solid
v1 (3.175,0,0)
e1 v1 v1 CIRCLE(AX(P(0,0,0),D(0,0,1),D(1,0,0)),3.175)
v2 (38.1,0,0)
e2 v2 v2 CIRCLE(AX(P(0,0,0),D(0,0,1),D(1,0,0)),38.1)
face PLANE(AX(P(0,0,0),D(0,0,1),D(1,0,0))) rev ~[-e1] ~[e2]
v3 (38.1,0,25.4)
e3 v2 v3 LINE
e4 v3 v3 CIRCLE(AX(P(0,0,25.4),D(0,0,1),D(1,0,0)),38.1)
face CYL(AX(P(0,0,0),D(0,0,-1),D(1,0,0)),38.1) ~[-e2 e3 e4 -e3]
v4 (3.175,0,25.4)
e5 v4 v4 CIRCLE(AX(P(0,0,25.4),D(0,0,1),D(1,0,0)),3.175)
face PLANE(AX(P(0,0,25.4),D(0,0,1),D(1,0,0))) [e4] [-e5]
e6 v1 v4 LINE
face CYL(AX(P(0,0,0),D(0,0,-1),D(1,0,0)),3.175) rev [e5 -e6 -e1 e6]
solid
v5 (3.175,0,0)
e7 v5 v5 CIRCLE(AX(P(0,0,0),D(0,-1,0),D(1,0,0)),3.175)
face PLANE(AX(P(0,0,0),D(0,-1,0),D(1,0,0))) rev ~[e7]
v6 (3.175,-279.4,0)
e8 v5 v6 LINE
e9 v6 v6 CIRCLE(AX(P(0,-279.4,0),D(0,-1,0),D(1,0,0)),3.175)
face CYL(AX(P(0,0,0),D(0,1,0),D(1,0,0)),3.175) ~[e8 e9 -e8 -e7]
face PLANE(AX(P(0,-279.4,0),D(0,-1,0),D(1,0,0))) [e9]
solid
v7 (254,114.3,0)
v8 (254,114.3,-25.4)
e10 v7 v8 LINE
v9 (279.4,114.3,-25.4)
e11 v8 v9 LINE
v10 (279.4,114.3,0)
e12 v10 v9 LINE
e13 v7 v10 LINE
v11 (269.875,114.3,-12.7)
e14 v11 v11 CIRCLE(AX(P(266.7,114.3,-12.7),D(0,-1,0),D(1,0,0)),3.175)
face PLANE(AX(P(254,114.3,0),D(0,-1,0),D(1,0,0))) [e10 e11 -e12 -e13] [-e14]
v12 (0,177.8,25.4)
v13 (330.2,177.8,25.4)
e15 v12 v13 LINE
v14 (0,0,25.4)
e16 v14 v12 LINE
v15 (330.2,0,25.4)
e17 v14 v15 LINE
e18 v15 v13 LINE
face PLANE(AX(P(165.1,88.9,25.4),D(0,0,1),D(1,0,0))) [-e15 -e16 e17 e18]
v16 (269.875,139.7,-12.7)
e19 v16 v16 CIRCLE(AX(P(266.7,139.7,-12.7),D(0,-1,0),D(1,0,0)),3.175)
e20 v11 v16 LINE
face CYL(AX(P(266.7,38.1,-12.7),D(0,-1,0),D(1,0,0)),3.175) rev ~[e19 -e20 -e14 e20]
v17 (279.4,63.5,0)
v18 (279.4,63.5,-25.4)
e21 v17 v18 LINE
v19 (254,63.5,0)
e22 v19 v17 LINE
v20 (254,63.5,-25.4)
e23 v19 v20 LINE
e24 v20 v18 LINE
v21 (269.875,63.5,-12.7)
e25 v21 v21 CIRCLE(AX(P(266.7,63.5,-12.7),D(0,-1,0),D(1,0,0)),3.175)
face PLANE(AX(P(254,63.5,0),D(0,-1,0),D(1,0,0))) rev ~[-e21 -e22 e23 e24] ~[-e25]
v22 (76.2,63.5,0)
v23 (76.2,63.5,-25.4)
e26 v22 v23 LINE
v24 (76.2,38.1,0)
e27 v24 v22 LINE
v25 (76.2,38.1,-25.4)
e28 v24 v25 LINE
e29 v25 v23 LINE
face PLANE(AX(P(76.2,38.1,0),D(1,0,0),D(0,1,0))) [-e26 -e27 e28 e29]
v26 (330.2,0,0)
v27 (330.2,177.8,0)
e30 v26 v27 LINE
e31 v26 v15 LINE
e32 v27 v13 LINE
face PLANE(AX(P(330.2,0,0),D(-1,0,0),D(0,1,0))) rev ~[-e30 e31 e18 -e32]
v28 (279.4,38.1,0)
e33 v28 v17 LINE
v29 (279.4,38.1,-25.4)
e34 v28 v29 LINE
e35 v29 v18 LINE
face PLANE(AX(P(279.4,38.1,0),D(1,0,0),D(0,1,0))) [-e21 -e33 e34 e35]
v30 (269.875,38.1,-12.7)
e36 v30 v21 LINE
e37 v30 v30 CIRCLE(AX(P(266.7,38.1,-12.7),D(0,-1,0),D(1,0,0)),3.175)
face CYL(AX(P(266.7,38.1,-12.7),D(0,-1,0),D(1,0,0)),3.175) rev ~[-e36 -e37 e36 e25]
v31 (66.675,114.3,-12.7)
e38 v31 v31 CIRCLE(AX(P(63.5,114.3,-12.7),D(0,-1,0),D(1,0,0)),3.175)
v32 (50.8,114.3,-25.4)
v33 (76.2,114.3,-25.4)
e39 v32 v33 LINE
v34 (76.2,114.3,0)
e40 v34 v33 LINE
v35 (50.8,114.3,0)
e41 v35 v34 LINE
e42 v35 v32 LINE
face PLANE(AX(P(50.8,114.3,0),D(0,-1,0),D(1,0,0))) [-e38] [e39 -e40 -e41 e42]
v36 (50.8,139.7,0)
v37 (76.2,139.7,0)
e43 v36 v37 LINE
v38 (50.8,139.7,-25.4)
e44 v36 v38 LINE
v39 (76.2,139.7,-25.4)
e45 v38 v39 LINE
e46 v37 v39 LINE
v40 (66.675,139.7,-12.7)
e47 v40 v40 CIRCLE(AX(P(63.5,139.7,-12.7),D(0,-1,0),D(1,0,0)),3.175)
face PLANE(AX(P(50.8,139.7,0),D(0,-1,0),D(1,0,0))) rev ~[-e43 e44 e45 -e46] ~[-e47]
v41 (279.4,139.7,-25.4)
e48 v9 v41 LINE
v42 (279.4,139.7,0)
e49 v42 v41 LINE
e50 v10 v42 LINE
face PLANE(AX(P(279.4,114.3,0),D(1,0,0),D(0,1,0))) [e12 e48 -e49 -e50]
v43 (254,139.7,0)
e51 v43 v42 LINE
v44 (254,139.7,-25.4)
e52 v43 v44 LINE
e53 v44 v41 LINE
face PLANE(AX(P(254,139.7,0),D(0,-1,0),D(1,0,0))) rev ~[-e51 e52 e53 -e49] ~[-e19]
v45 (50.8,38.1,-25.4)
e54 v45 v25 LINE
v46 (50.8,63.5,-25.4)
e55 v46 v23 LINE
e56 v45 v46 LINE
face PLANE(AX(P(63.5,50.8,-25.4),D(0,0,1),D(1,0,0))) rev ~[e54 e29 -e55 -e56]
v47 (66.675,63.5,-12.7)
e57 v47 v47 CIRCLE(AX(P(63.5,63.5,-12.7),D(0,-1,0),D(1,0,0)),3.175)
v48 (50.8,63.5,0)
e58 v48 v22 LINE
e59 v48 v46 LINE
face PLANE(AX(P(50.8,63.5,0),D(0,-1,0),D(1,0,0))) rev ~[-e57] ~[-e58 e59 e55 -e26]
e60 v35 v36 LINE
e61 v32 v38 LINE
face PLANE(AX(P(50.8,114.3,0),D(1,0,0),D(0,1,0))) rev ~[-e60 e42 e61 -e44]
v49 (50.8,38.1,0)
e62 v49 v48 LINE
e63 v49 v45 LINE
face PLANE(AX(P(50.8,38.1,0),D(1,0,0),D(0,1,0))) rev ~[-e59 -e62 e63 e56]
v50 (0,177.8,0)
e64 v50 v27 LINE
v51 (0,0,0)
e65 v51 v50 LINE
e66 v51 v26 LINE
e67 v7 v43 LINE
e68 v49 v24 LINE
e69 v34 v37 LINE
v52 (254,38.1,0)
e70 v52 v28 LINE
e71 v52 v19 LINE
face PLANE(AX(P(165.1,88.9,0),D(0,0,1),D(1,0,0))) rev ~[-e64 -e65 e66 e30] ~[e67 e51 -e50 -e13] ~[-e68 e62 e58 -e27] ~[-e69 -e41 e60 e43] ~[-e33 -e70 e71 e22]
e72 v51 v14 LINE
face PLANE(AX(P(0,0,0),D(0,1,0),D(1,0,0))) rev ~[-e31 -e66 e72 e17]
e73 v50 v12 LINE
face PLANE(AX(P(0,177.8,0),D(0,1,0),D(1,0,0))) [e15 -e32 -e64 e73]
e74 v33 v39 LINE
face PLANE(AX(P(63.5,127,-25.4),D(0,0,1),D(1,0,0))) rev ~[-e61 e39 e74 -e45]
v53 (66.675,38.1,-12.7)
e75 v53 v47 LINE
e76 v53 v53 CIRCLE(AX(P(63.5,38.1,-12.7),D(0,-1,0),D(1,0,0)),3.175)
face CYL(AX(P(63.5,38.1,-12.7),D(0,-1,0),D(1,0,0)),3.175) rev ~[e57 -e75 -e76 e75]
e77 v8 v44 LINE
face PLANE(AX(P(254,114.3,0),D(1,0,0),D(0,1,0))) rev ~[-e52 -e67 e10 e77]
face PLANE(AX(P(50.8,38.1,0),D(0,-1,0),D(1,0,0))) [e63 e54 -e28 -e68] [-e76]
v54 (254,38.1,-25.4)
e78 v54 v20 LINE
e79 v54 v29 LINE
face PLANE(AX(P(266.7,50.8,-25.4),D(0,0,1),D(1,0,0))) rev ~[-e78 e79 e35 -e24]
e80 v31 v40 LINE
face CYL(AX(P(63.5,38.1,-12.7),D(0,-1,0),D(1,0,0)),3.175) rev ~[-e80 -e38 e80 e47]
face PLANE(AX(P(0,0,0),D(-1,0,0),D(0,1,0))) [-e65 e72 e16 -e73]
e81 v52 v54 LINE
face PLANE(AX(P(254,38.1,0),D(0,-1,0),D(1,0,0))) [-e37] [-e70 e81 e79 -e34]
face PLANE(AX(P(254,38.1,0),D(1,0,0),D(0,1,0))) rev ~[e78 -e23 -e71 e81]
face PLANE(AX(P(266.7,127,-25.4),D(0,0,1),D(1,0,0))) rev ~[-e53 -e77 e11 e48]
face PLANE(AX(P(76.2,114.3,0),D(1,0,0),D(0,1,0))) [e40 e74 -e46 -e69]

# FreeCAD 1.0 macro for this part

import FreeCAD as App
import Part
import Sketcher

V = App.Vector
Q = App.Units.Quantity


def add_polygon(sketch, points):
    """Adds a closed chain of lines whose ends are joined by coincident constraints."""
    first, n = sketch.GeometryCount, len(points)
    for a, b in zip(points, points[1:] + points[:1]):
        sketch.addGeometry(Part.LineSegment(App.Vector(*a, 0), App.Vector(*b, 0)), False)
    for i in range(n):
        sketch.addConstraint(Sketcher.Constraint("Coincident", first + i, 2, first + (i + 1) % n, 1))

doc = App.newDocument("Part")
params = doc.addObject("Spreadsheet::Sheet", "Params")
for row, (alias, value) in enumerate([
    ("sketch1_width", "13 in"),
    ("sketch1_height", "7 in"),
    ("pad1_length", "1 in"),
    ("sketch2_width", "1 in"),
    ("pad2_length", "1 in"),
    ("sketch3_diameter", "0.25 in"),
    ("sketch4_diameter", "3 in"),
    ("sketch4_diameter2", "0.25 in"),
    ("pad3_length", "1 in"),
    ("sketch5_diameter", "0.25 in"),
    ("pad4_length", "11 in"),
], start=1):
    params.set(f"A{row}", alias)
    params.set(f"B{row}", "=" + value)
    params.setAlias(f"B{row}", alias)

body = doc.addObject("PartDesign::Body", "Body")

# Sketch on XY plane
sketch1 = body.newObject("Sketcher::SketchObject", "Sketch")
sketch1.AttachmentSupport = (doc.getObject("XY_Plane"), [""])
sketch1.MapMode = "FlatFace"
add_polygon(sketch1, [(0, 178), (0, 0), (330, 0), (330, 178)])  # lines 0-3
sketch1.addConstraint([
    Sketcher.Constraint("Vertical", 0),
    Sketcher.Constraint("Horizontal", 1),
    Sketcher.Constraint("Vertical", 2),
    Sketcher.Constraint("Horizontal", 3),
    Sketcher.Constraint("Coincident", 0, 2, -1, 1),
    Sketcher.Constraint("DistanceX", 1, 1, 1, 2, Q("13 in")),
    Sketcher.Constraint("DistanceY", 0, 2, 0, 1, Q("7 in")),
])
sketch1.setExpression("Constraints[9]", "Params.sketch1_width")
sketch1.setExpression("Constraints[10]", "Params.sketch1_height")
pad1 = body.newObject("PartDesign::Pad", "Pad")
pad1.Profile = sketch1
pad1.setExpression("Length", "Params.pad1_length")

# Sketch on XY plane
sketch2 = body.newObject("Sketcher::SketchObject", "Sketch001")
sketch2.AttachmentSupport = (doc.getObject("XY_Plane"), [""])
sketch2.MapMode = "FlatFace"
add_polygon(sketch2, [(51, 64), (51, 38), (76, 38), (76, 64)])  # lines 0-3
add_polygon(sketch2, [(51, 140), (51, 114), (76, 114), (76, 140)])  # lines 4-7
add_polygon(sketch2, [(254, 140), (254, 114), (279, 114), (279, 140)])  # lines 8-11
add_polygon(sketch2, [(254, 64), (254, 38), (279, 38), (279, 64)])  # lines 12-15
sketch2.addConstraint([
    Sketcher.Constraint("Vertical", 0),
    Sketcher.Constraint("Horizontal", 1),
    Sketcher.Constraint("Vertical", 2),
    Sketcher.Constraint("Horizontal", 3),
    Sketcher.Constraint("Vertical", 4),
    Sketcher.Constraint("Horizontal", 5),
    Sketcher.Constraint("Vertical", 6),
    Sketcher.Constraint("Horizontal", 7),
    Sketcher.Constraint("Vertical", 8),
    Sketcher.Constraint("Horizontal", 9),
    Sketcher.Constraint("Vertical", 10),
    Sketcher.Constraint("Horizontal", 11),
    Sketcher.Constraint("Vertical", 12),
    Sketcher.Constraint("Horizontal", 13),
    Sketcher.Constraint("Vertical", 14),
    Sketcher.Constraint("Horizontal", 15),
    Sketcher.Constraint("Horizontal", 5, 2, 8, 2),
    Sketcher.Constraint("Horizontal", 7, 2, 10, 2),
    Sketcher.Constraint("Horizontal", 1, 2, 12, 2),
    Sketcher.Constraint("Horizontal", 3, 2, 14, 2),
    Sketcher.Constraint("Vertical", 3, 2, 4, 2),
    Sketcher.Constraint("Vertical", 2, 2, 5, 2),
    Sketcher.Constraint("Vertical", 11, 2, 12, 2),
    Sketcher.Constraint("Vertical", 10, 2, 13, 2),
    Sketcher.Constraint("Equal", 7, 9),
    Sketcher.Constraint("Equal", 15, 0),
    Sketcher.Constraint("Equal", 2, 4),
    Sketcher.Constraint("DistanceX", 1, 1, 1, 2, Q("1 in")),
    Sketcher.Constraint("DistanceX", -1, 1, 0, 2, Q("2 in")),
    Sketcher.Constraint("DistanceX", -1, 1, 8, 2, Q("10 in")),
    Sketcher.Constraint("DistanceY", 3, 2, 4, 2, Q("2 in")),
    Sketcher.Constraint("DistanceY", -1, 1, 0, 2, Q("1.5 in")),
])
sketch2.setExpression("Constraints[43]", "Params.sketch2_width")
pad2 = body.newObject("PartDesign::Pad", "Pad001")
pad2.Profile = sketch2
pad2.setExpression("Length", "Params.pad2_length")
pad2.Reversed = True

# Sketch on XZ plane
sketch3 = body.newObject("Sketcher::SketchObject", "Sketch002")
sketch3.AttachmentSupport = (doc.getObject("XZ_Plane"), [""])
sketch3.MapMode = "FlatFace"
sketch3.AttachmentOffset = App.Placement(V(0, 0, -1.5 * 25.4), App.Rotation())
sketch3.addGeometry([
    Part.Circle(V(63.5, -12.7, 0), V(0, 0, 1), 3.2),
    Part.Circle(V(266.7, -12.7, 0), V(0, 0, 1), 3.2),
], False)
sketch3.addConstraint([
    Sketcher.Constraint("Equal", 0, 1),
    Sketcher.Constraint("Horizontal", 0, 3, 1, 3),
    Sketcher.Constraint("Diameter", 0, Q("0.25 in")),
    Sketcher.Constraint("DistanceX", 0, 3, 1, 3, Q("8 in")),
    Sketcher.Constraint("DistanceX", -1, 1, 0, 3, Q("2.5 in")),
    Sketcher.Constraint("DistanceY", 0, 3, -1, 1, Q("0.5 in")),
])
sketch3.setExpression("Constraints[2]", "Params.sketch3_diameter")
pocket1 = body.newObject("PartDesign::Pocket", "Pocket")
pocket1.Profile = sketch3
pocket1.Type = "ThroughAll"
body2 = doc.addObject("PartDesign::Body", "Body001")

# Sketch on XY plane
sketch4 = body2.newObject("Sketcher::SketchObject", "Sketch003")
sketch4.AttachmentSupport = (doc.getObject("XY_Plane001"), [""])
sketch4.MapMode = "FlatFace"
sketch4.addGeometry([
    Part.Circle(V(0, 0, 0), V(0, 0, 1), 38.1),
    Part.Circle(V(0, 0, 0), V(0, 0, 1), 3.2),
], False)
sketch4.addConstraint([
    Sketcher.Constraint("Coincident", 0, 3, -1, 1),
    Sketcher.Constraint("Coincident", 1, 3, -1, 1),
    Sketcher.Constraint("Diameter", 0, Q("3 in")),
    Sketcher.Constraint("Diameter", 1, Q("0.25 in")),
])
sketch4.setExpression("Constraints[2]", "Params.sketch4_diameter")
sketch4.setExpression("Constraints[3]", "Params.sketch4_diameter2")
pad3 = body2.newObject("PartDesign::Pad", "Pad002")
pad3.Profile = sketch4
pad3.setExpression("Length", "Params.pad3_length")
body3 = doc.addObject("PartDesign::Body", "Body002")

# Sketch on XZ plane
sketch5 = body3.newObject("Sketcher::SketchObject", "Sketch004")
sketch5.AttachmentSupport = (doc.getObject("XZ_Plane002"), [""])
sketch5.MapMode = "FlatFace"
sketch5.addGeometry(Part.Circle(V(0, 0, 0), V(0, 0, 1), 3.2), False)
sketch5.addConstraint([
    Sketcher.Constraint("Coincident", 0, 3, -1, 1),
    Sketcher.Constraint("Diameter", 0, Q("0.25 in")),
])
sketch5.setExpression("Constraints[1]", "Params.sketch5_diameter")
pad4 = body3.newObject("PartDesign::Pad", "Pad003")
pad4.Profile = sketch5
pad4.setExpression("Length", "Params.pad4_length")

doc.recompute()
